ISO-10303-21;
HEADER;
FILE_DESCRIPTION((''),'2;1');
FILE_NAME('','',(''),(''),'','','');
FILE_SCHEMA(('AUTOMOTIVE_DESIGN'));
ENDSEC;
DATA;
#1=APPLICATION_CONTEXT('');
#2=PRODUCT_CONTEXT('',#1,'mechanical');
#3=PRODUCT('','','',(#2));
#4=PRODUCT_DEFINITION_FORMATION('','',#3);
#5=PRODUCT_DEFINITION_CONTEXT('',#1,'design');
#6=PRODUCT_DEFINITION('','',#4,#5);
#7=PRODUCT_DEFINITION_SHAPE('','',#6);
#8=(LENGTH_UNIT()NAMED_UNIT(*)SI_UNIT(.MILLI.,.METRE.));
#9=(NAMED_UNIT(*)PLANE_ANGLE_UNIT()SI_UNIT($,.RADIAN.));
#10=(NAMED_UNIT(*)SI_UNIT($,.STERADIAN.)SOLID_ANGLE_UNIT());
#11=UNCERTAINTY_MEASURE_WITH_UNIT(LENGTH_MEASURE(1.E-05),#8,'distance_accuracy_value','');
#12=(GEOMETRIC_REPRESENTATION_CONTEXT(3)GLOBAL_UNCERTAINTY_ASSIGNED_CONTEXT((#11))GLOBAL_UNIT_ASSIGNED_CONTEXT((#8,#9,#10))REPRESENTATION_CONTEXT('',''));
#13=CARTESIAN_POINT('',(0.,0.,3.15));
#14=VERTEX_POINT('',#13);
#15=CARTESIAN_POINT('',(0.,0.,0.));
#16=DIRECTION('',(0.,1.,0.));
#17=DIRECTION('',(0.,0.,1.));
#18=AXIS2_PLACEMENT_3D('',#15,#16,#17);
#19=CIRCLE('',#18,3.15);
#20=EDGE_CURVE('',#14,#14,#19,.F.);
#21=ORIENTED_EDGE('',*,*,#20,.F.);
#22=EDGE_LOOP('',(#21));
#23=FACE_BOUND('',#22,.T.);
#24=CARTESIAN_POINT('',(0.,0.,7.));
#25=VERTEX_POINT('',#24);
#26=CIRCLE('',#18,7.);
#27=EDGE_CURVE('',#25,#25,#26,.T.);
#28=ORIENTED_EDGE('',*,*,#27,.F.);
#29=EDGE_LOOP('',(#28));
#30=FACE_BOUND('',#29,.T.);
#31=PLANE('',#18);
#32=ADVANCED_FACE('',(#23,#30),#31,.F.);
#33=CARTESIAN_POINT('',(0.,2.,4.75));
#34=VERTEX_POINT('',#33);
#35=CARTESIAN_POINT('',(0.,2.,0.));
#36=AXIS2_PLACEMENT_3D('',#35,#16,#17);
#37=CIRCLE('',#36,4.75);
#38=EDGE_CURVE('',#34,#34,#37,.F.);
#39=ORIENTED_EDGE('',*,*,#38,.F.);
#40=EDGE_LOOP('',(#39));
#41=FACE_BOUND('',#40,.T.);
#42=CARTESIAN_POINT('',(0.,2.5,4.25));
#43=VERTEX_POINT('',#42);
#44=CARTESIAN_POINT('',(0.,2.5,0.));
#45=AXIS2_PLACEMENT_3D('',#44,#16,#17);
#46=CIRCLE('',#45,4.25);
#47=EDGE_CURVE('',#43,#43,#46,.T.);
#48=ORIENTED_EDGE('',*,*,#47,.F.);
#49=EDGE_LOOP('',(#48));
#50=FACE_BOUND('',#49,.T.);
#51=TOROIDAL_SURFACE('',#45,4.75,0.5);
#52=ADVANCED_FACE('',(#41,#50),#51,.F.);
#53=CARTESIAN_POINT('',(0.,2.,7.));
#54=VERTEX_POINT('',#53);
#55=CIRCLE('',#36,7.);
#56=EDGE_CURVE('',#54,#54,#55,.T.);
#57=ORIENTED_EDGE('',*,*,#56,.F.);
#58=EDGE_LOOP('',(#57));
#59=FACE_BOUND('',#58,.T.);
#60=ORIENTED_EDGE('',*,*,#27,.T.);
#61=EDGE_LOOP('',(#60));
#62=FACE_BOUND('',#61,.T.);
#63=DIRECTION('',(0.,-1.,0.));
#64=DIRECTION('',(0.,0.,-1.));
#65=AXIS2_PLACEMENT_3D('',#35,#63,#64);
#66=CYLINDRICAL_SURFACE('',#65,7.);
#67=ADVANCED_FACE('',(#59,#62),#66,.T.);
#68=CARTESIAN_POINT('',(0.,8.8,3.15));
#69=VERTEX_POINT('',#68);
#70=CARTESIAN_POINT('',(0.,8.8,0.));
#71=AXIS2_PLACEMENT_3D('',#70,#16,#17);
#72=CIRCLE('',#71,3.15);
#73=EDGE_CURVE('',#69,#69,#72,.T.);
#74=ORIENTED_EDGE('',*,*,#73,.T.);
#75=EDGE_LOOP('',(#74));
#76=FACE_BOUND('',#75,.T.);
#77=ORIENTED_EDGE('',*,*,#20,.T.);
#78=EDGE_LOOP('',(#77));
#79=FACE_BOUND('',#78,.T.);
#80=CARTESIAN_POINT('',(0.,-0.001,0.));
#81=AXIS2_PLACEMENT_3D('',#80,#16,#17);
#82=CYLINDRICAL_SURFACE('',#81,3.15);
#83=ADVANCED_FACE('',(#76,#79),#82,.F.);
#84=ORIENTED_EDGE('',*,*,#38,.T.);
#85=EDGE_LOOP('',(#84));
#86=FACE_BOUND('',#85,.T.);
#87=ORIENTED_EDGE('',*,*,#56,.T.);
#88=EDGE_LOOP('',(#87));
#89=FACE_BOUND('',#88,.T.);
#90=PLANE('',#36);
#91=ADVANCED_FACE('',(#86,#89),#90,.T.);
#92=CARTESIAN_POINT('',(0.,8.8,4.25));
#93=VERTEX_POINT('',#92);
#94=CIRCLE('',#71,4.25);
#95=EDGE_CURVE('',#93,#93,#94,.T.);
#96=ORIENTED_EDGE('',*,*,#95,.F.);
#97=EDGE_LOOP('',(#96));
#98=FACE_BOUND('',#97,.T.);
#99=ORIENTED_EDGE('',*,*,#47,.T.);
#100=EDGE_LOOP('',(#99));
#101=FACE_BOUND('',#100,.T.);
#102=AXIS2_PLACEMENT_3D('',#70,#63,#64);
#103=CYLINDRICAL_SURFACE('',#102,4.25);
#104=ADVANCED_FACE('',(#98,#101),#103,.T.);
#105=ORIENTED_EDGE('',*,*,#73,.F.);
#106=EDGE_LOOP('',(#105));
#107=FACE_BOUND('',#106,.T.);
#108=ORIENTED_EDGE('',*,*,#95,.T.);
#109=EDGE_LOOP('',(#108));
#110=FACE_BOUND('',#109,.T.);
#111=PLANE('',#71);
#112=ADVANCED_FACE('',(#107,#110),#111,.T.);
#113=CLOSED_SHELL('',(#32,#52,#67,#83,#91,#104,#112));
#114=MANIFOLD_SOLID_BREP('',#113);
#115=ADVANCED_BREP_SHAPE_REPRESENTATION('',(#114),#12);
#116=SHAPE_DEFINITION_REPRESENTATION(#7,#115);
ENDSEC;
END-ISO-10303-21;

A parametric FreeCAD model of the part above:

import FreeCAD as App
import Part
import Sketcher
Q = App.Units.Quantity


def edges_at(feature, points):
    """Names of the edges that pass closest to the given points."""
    edges = feature.Shape.Edges
    near = lambda p: min(range(len(edges)), key=lambda i: edges[i].distToShape(Part.Vertex(*p))[0])
    return sorted({f"Edge{near(p) + 1}" for p in points})

doc = App.newDocument("Part")
body = doc.addObject("PartDesign::Body", "Body")

# Sketch on XZ plane
sketch1 = body.newObject("Sketcher::SketchObject", "Sketch")
sketch1.AttachmentSupport = (doc.getObject("XZ_Plane"), [""])
sketch1.MapMode = "FlatFace"
sketch1.addGeometry(Part.Circle(App.Vector(0, 0, 0), App.Vector(0, 0, 1), 7), False)
sketch1.addConstraint([
    Sketcher.Constraint("Coincident", 0, 3, -1, 1),
    Sketcher.Constraint("Diameter", 0, Q("14 mm")),
])
pad1 = body.newObject("PartDesign::Pad", "Pad")
pad1.Profile = sketch1
pad1.Length = 2
pad1.Reversed = True

# Sketch on XZ plane
sketch2 = body.newObject("Sketcher::SketchObject", "Sketch001")
sketch2.AttachmentSupport = (doc.getObject("XZ_Plane"), [""])
sketch2.MapMode = "FlatFace"
sketch2.AttachmentOffset = App.Placement(App.Vector(0, 0, -2), App.Rotation())
sketch2.addGeometry(Part.Circle(App.Vector(0, 0, 0), App.Vector(0, 0, 1), 4.2), False)
sketch2.addConstraint([
    Sketcher.Constraint("Coincident", 0, 3, -1, 1),
    Sketcher.Constraint("Diameter", 0, Q("8.5 mm")),
])
pad2 = body.newObject("PartDesign::Pad", "Pad001")
pad2.Profile = sketch2
pad2.Length = 6.8
pad2.Reversed = True

# Sketch on XZ plane
sketch3 = body.newObject("Sketcher::SketchObject", "Sketch002")
sketch3.AttachmentSupport = (doc.getObject("XZ_Plane"), [""])
sketch3.MapMode = "FlatFace"
sketch3.AttachmentOffset = App.Placement(App.Vector(0, 0, -8.8), App.Rotation())
sketch3.addGeometry(Part.Circle(App.Vector(0, 0, 0), App.Vector(0, 0, 1), 3.1), False)
sketch3.addConstraint([
    Sketcher.Constraint("Coincident", 0, 3, -1, 1),
    Sketcher.Constraint("Diameter", 0, Q("6.3 mm")),
])
pocket1 = body.newObject("PartDesign::Pocket", "Pocket")
pocket1.Profile = sketch3
pocket1.Type = "UpToFirst"
pocket1.Reversed = True
doc.recompute()

fillet = body.newObject("PartDesign::Fillet", "Fillet")
fillet.Base = (pocket1, edges_at(pocket1, [(0, 2, -4.25)]))
fillet.Radius = 0.5

doc.recompute()
